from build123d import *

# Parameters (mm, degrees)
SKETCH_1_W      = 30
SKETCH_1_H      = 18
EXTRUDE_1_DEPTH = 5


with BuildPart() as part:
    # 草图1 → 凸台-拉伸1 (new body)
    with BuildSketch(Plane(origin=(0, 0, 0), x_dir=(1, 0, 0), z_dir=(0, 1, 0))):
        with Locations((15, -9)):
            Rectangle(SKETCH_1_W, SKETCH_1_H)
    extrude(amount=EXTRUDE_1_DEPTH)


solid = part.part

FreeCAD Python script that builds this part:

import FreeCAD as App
import Part
import Sketcher
from FreeCAD import Vector
Q = App.Units.Quantity

doc = App.newDocument("Part")
params = doc.addObject("Spreadsheet::Sheet", "Params")
for row, (alias, value) in enumerate([
    ("sketch1_width", "30 mm"),
    ("sketch1_height", "18 mm"),
    ("pad1_length", "5 mm"),
], start=1):
    params.set(f"A{row}", alias)
    params.set(f"B{row}", "=" + value)
    params.setAlias(f"B{row}", alias)

body = doc.addObject("PartDesign::Body", "Body")

# Sketch on XZ plane
sketch1 = body.newObject("Sketcher::SketchObject", "Sketch")
sketch1.AttachmentSupport = (doc.getObject("XZ_Plane"), [""])
sketch1.MapMode = "FlatFace"
sketch1.addGeometry([
    Part.LineSegment(Vector(0, 0, 0), Vector(0, 18, 0)),
    Part.LineSegment(Vector(0, 18, 0), Vector(30, 18, 0)),
    Part.LineSegment(Vector(30, 18, 0), Vector(30, 0, 0)),
    Part.LineSegment(Vector(30, 0, 0), Vector(0, 0, 0)),
], False)
sketch1.addConstraint([
    Sketcher.Constraint("Coincident", 0, 2, 1, 1),
    Sketcher.Constraint("Coincident", 1, 2, 2, 1),
    Sketcher.Constraint("Coincident", 2, 2, 3, 1),
    Sketcher.Constraint("Coincident", 3, 2, 0, 1),
    Sketcher.Constraint("Vertical", 0),
    Sketcher.Constraint("Horizontal", 1),
    Sketcher.Constraint("Vertical", 2),
    Sketcher.Constraint("Horizontal", 3),
    Sketcher.Constraint("Coincident", 3, 2, -1, 1),
    Sketcher.Constraint("DistanceX", 1, 1, 1, 2, Q("30 mm")),
    Sketcher.Constraint("DistanceY", 0, 1, 0, 2, Q("18 mm")),
])
sketch1.setExpression("Constraints[9]", "Params.sketch1_width")
sketch1.setExpression("Constraints[10]", "Params.sketch1_height")
pad1 = body.newObject("PartDesign::Pad", "Pad")
pad1.Profile = sketch1
pad1.setExpression("Length", "Params.pad1_length")
pad1.Reversed = True

doc.recompute()
